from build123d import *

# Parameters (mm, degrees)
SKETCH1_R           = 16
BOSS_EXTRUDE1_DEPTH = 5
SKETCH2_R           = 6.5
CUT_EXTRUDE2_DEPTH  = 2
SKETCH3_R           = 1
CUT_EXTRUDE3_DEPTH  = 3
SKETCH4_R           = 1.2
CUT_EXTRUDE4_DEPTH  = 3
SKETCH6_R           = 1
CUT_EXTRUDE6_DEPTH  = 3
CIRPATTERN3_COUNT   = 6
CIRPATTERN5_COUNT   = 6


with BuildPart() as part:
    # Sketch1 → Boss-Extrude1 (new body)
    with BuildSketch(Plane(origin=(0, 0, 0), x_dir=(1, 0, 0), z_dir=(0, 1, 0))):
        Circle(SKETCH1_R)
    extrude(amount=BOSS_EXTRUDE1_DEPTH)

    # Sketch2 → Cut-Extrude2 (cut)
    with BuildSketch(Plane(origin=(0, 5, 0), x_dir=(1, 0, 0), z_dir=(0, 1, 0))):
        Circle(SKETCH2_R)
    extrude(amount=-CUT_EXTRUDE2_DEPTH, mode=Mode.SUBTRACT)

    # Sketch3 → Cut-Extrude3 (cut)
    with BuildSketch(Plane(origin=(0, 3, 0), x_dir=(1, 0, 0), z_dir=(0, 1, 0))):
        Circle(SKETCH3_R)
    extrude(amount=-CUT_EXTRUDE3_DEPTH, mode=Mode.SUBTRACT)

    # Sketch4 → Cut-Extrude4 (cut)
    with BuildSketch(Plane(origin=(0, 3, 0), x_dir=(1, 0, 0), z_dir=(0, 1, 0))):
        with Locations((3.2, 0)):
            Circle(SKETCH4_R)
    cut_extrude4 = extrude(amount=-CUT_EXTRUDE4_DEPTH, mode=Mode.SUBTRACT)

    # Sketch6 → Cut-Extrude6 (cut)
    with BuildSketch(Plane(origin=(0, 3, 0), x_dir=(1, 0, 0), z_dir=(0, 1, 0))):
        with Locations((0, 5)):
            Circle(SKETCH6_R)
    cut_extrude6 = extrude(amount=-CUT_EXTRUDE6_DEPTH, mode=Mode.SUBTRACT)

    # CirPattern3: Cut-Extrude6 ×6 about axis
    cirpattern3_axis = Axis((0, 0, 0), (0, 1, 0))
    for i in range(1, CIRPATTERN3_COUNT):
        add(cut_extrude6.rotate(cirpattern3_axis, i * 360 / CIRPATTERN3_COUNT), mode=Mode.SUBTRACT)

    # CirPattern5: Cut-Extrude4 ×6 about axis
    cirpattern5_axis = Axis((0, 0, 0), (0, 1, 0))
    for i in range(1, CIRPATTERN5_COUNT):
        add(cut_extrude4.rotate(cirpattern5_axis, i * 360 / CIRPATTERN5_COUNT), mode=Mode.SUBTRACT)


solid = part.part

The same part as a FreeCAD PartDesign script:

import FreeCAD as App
import Part
import Sketcher

doc = App.newDocument("Part")
body = doc.addObject("PartDesign::Body", "Body")

sketch1 = body.newObject("Sketcher::SketchObject", "Sketch")
sketch1.AttachmentSupport = (doc.getObject("XZ_Plane"), [""])
sketch1.MapMode = "FlatFace"
sketch1.addGeometry(Part.Circle(App.Vector(0, 0, 0), App.Vector(0, 0, 1), 16), False)
sketch1.addConstraint(Sketcher.Constraint("Coincident", 0, 3, -1, 1))
sketch1.addConstraint(Sketcher.Constraint("Diameter", 0, 32.0))
pad1 = body.newObject("PartDesign::Pad", "Pad")
pad1.Profile = sketch1
pad1.Length = 5
pad1.Reversed = True

sketch2 = body.newObject("Sketcher::SketchObject", "Sketch001")
sketch2.AttachmentSupport = (doc.getObject("XZ_Plane"), [""])
sketch2.MapMode = "FlatFace"
sketch2.AttachmentOffset = App.Placement(App.Vector(0, 0, -5), App.Rotation())
sketch2.addGeometry(Part.Circle(App.Vector(0, 0, 0), App.Vector(0, 0, 1), 6), False)
sketch2.addConstraint(Sketcher.Constraint("Coincident", 0, 3, -1, 1))
sketch2.addConstraint(Sketcher.Constraint("Diameter", 0, 13.0))
pocket1 = body.newObject("PartDesign::Pocket", "Pocket")
pocket1.Profile = sketch2
pocket1.Length = 2
pocket1.Reversed = True

sketch3 = body.newObject("Sketcher::SketchObject", "Sketch002")
sketch3.AttachmentSupport = (doc.getObject("XZ_Plane"), [""])
sketch3.MapMode = "FlatFace"
sketch3.AttachmentOffset = App.Placement(App.Vector(0, 0, -3), App.Rotation())
sketch3.addGeometry(Part.Circle(App.Vector(0, 0, 0), App.Vector(0, 0, 1), 1), False)
sketch3.addConstraint(Sketcher.Constraint("Coincident", 0, 3, -1, 1))
sketch3.addConstraint(Sketcher.Constraint("Diameter", 0, 2.0))
pocket2 = body.newObject("PartDesign::Pocket", "Pocket001")
pocket2.Profile = sketch3
pocket2.Length = 3
pocket2.Reversed = True

sketch4 = body.newObject("Sketcher::SketchObject", "Sketch003")
sketch4.AttachmentSupport = (doc.getObject("XZ_Plane"), [""])
sketch4.MapMode = "FlatFace"
sketch4.AttachmentOffset = App.Placement(App.Vector(0, 0, -3), App.Rotation())
sketch4.addGeometry(Part.Circle(App.Vector(3.2, 0, 0), App.Vector(0, 0, 1), 1.2), False)
sketch4.addConstraint(Sketcher.Constraint("PointOnObject", 0, 3, -1))
sketch4.addConstraint(Sketcher.Constraint("Diameter", 0, 2.4))
sketch4.addConstraint(Sketcher.Constraint("DistanceX", -1, 1, 0, 3, 3.2))
pocket3 = body.newObject("PartDesign::Pocket", "Pocket002")
pocket3.Profile = sketch4
pocket3.Length = 3
pocket3.Reversed = True

sketch5 = body.newObject("Sketcher::SketchObject", "Sketch004")
sketch5.AttachmentSupport = (doc.getObject("XZ_Plane"), [""])
sketch5.MapMode = "FlatFace"
sketch5.AttachmentOffset = App.Placement(App.Vector(0, 0, -3), App.Rotation())
sketch5.addGeometry(Part.Circle(App.Vector(0, -5, 0), App.Vector(0, 0, 1), 1), False)
sketch5.addConstraint(Sketcher.Constraint("PointOnObject", 0, 3, -2))
sketch5.addConstraint(Sketcher.Constraint("Diameter", 0, 2.0))
sketch5.addConstraint(Sketcher.Constraint("DistanceY", 0, 3, -1, 1, 5.0))
pocket4 = body.newObject("PartDesign::Pocket", "Pocket003")
pocket4.Profile = sketch5
pocket4.Length = 3
pocket4.Reversed = True
doc.recompute()

polarpattern = body.newObject("PartDesign::PolarPattern", "PolarPattern")
polarpattern.Originals = [pocket4]
polarpattern.Axis = (doc.getObject("Y_Axis"), [""])
polarpattern.Angle = 360
polarpattern.Occurrences = 6
body.Tip = polarpattern
doc.recompute()

polarpattern2 = body.newObject("PartDesign::PolarPattern", "PolarPattern001")
polarpattern2.Originals = [pocket3]
polarpattern2.Axis = (doc.getObject("Y_Axis"), [""])
polarpattern2.Angle = 360
polarpattern2.Occurrences = 6
body.Tip = polarpattern2

doc.recompute()
